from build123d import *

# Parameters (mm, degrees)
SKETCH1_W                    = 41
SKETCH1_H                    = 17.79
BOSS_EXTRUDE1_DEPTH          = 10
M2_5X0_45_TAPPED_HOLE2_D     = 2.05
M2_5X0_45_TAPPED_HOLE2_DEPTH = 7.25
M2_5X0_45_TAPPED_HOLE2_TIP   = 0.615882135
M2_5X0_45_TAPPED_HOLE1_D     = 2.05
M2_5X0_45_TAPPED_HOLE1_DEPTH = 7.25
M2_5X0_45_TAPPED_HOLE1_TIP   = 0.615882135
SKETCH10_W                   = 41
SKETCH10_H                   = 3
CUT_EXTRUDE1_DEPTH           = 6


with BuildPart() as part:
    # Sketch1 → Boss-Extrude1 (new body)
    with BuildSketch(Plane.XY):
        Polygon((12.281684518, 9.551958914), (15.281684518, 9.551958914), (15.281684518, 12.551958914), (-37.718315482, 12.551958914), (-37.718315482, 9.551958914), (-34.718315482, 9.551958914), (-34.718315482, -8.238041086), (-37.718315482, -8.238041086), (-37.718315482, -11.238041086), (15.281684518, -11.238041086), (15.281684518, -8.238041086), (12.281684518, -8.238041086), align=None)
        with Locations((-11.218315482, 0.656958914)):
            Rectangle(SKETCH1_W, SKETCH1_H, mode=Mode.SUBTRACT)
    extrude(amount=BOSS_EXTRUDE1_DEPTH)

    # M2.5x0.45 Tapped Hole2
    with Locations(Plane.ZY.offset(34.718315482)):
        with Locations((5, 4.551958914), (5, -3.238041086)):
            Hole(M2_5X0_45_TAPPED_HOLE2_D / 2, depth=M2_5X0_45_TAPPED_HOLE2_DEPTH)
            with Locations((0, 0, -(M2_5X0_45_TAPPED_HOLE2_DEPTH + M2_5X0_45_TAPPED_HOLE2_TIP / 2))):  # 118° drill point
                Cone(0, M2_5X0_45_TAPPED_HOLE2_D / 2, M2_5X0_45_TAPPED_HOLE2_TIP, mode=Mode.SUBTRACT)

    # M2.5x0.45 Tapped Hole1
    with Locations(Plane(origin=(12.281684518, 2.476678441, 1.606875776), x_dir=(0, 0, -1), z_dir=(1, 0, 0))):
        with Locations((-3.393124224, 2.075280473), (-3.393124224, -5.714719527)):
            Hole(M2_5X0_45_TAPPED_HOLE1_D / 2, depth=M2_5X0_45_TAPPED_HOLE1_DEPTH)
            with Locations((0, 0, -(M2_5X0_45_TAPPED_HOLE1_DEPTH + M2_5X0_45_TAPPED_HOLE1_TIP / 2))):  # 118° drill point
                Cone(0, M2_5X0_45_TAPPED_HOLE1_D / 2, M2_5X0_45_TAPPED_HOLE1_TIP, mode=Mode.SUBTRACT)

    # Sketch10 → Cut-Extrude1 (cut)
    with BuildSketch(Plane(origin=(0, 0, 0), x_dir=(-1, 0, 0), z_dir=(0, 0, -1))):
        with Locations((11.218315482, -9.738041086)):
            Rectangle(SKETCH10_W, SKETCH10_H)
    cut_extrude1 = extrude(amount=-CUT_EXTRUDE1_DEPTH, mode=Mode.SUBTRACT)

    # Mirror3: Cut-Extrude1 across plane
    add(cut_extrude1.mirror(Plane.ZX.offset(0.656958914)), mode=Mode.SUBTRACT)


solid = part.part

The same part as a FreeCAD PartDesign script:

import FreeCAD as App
import Part
import Sketcher
from FreeCAD import Vector

doc = App.newDocument("Part")
params = doc.addObject("Spreadsheet::Sheet", "Params")
for row, (alias, value) in enumerate([
    ("sketch1_width", "3 mm"),
    ("sketch1_width2", "53 mm"),
    ("sketch1_width3", "41 mm"),
    ("sketch1_height", "17.79 mm"),
    ("pad1_length", "10 mm"),
    ("sketch2_diameter", "2.05 mm"),
    ("hole_diameter", "2.05 mm"),
    ("hole_depth", "7.25 mm"),
    ("sketch3_diameter", "2.05 mm"),
    ("hole2_diameter", "2.05 mm"),
    ("hole2_depth", "7.25 mm"),
    ("sketch4_width", "41 mm"),
    ("sketch4_height", "3 mm"),
    ("pocket1_length", "6 mm"),
], start=1):
    params.set(f"A{row}", alias)
    params.set(f"B{row}", "=" + value)
    params.setAlias(f"B{row}", alias)

body = doc.addObject("PartDesign::Body", "Body")

sketch1 = doc.addObject("Sketcher::SketchObject", "Sketch")
body.addObject(sketch1)
sketch1.AttachmentSupport = (doc.XY_Plane, [""])
sketch1.MapMode = "FlatFace"
sketch1.addGeometry(Part.LineSegment(Vector(12.3, 9.6, 0), Vector(15.3, 9.6, 0)), False)
sketch1.addGeometry(Part.LineSegment(Vector(15.3, 9.6, 0), Vector(15.3, 12.6, 0)), False)
sketch1.addGeometry(Part.LineSegment(Vector(15.3, 12.6, 0), Vector(-37.7, 12.6, 0)), False)
sketch1.addGeometry(Part.LineSegment(Vector(-37.7, 12.6, 0), Vector(-37.7, 9.6, 0)), False)
sketch1.addGeometry(Part.LineSegment(Vector(-37.7, 9.6, 0), Vector(-34.7, 9.6, 0)), False)
sketch1.addGeometry(Part.LineSegment(Vector(-34.7, 9.6, 0), Vector(-34.7, -8.2, 0)), False)
sketch1.addGeometry(Part.LineSegment(Vector(-34.7, -8.2, 0), Vector(-37.7, -8.2, 0)), False)
sketch1.addGeometry(Part.LineSegment(Vector(-37.7, -8.2, 0), Vector(-37.7, -11.2, 0)), False)
sketch1.addGeometry(Part.LineSegment(Vector(-37.7, -11.2, 0), Vector(15.3, -11.2, 0)), False)
sketch1.addGeometry(Part.LineSegment(Vector(15.3, -11.2, 0), Vector(15.3, -8.2, 0)), False)
sketch1.addGeometry(Part.LineSegment(Vector(15.3, -8.2, 0), Vector(12.3, -8.2, 0)), False)
sketch1.addGeometry(Part.LineSegment(Vector(12.3, -8.2, 0), Vector(12.3, 9.6, 0)), False)
sketch1.addGeometry(Part.LineSegment(Vector(9.3, -8.2, 0), Vector(-31.7, -8.2, 0)), False)
sketch1.addGeometry(Part.LineSegment(Vector(-31.7, -8.2, 0), Vector(-31.7, 9.6, 0)), False)
sketch1.addGeometry(Part.LineSegment(Vector(-31.7, 9.6, 0), Vector(9.3, 9.6, 0)), False)
sketch1.addGeometry(Part.LineSegment(Vector(9.3, 9.6, 0), Vector(9.3, -8.2, 0)), False)
sketch1.addConstraint(Sketcher.Constraint("Coincident", 0, 2, 1, 1))
sketch1.addConstraint(Sketcher.Constraint("Coincident", 1, 2, 2, 1))
sketch1.addConstraint(Sketcher.Constraint("Coincident", 2, 2, 3, 1))
sketch1.addConstraint(Sketcher.Constraint("Coincident", 3, 2, 4, 1))
sketch1.addConstraint(Sketcher.Constraint("Coincident", 4, 2, 5, 1))
sketch1.addConstraint(Sketcher.Constraint("Coincident", 5, 2, 6, 1))
sketch1.addConstraint(Sketcher.Constraint("Coincident", 6, 2, 7, 1))
sketch1.addConstraint(Sketcher.Constraint("Coincident", 7, 2, 8, 1))
sketch1.addConstraint(Sketcher.Constraint("Coincident", 8, 2, 9, 1))
sketch1.addConstraint(Sketcher.Constraint("Coincident", 9, 2, 10, 1))
sketch1.addConstraint(Sketcher.Constraint("Coincident", 10, 2, 11, 1))
sketch1.addConstraint(Sketcher.Constraint("Coincident", 11, 2, 0, 1))
sketch1.addConstraint(Sketcher.Constraint("Coincident", 12, 2, 13, 1))
sketch1.addConstraint(Sketcher.Constraint("Coincident", 13, 2, 14, 1))
sketch1.addConstraint(Sketcher.Constraint("Coincident", 14, 2, 15, 1))
sketch1.addConstraint(Sketcher.Constraint("Coincident", 15, 2, 12, 1))
sketch1.addConstraint(Sketcher.Constraint("Horizontal", 0))
sketch1.addConstraint(Sketcher.Constraint("Vertical", 1))
sketch1.addConstraint(Sketcher.Constraint("Horizontal", 2))
sketch1.addConstraint(Sketcher.Constraint("Vertical", 3))
sketch1.addConstraint(Sketcher.Constraint("Horizontal", 4))
sketch1.addConstraint(Sketcher.Constraint("Vertical", 5))
sketch1.addConstraint(Sketcher.Constraint("Horizontal", 6))
sketch1.addConstraint(Sketcher.Constraint("Vertical", 7))
sketch1.addConstraint(Sketcher.Constraint("Horizontal", 8))
sketch1.addConstraint(Sketcher.Constraint("Vertical", 9))
sketch1.addConstraint(Sketcher.Constraint("Horizontal", 10))
sketch1.addConstraint(Sketcher.Constraint("Vertical", 11))
sketch1.addConstraint(Sketcher.Constraint("Horizontal", 12))
sketch1.addConstraint(Sketcher.Constraint("Vertical", 13))
sketch1.addConstraint(Sketcher.Constraint("Horizontal", 14))
sketch1.addConstraint(Sketcher.Constraint("Vertical", 15))
sketch1.addConstraint(Sketcher.Constraint("Horizontal", 0, 2, 3, 2))
sketch1.addConstraint(Sketcher.Constraint("Horizontal", 6, 2, 9, 2))
sketch1.addConstraint(Sketcher.Constraint("Horizontal", 10, 2, 12, 2))
sketch1.addConstraint(Sketcher.Constraint("Horizontal", 11, 2, 13, 2))
sketch1.addConstraint(Sketcher.Constraint("Vertical", 3, 2, 6, 2))
sketch1.addConstraint(Sketcher.Constraint("Vertical", 1, 2, 8, 2))
sketch1.addConstraint(Sketcher.Constraint("Equal", 0, 4))
sketch1.addConstraint(Sketcher.Constraint("Equal", 10, 1))
sketch1.addConstraint(Sketcher.Constraint("Equal", 3, 7))
sketch1.addConstraint(Sketcher.Constraint("DistanceX", 0, 1, 0, 2, 3.0))
sketch1.addConstraint(Sketcher.Constraint("DistanceX", 2, 2, 2, 1, 53.0))
sketch1.addConstraint(Sketcher.Constraint("DistanceX", 12, 2, 12, 1, 41.0))
sketch1.addConstraint(Sketcher.Constraint("DistanceX", 5, 2, 12, 2, 3.0))
sketch1.addConstraint(Sketcher.Constraint("DistanceY", 5, 2, 5, 1, 17.79))
sketch1.addConstraint(Sketcher.Constraint("DistanceY", -1, 1, 0, 2, 9.551959))
sketch1.addConstraint(Sketcher.Constraint("DistanceX", -1, 1, 0, 2, 15.281685))
sketch1.setExpression("Constraints[41]", "Params.sketch1_width")
sketch1.setExpression("Constraints[42]", "Params.sketch1_width2")
sketch1.setExpression("Constraints[43]", "Params.sketch1_width3")
sketch1.setExpression("Constraints[45]", "Params.sketch1_height")
pad1 = doc.addObject("PartDesign::Pad", "Pad")
body.addObject(pad1)
pad1.Profile = sketch1
pad1.setExpression("Length", "Params.pad1_length")

sketch2 = doc.addObject("Sketcher::SketchObject", "Sketch001")
body.addObject(sketch2)
sketch2.AttachmentSupport = (doc.YZ_Plane, [""])
sketch2.MapMode = "FlatFace"
sketch2.AttachmentOffset = App.Placement(Vector(0, 0, -34.718315), App.Rotation())
sketch2.addGeometry(Part.Circle(Vector(4.6, 5, 0), Vector(0, 0, 1), 1), False)
sketch2.addGeometry(Part.Circle(Vector(-3.2, 5, 0), Vector(0, 0, 1), 1), False)
sketch2.addConstraint(Sketcher.Constraint("Equal", 0, 1))
sketch2.addConstraint(Sketcher.Constraint("Horizontal", 0, 3, 1, 3))
sketch2.addConstraint(Sketcher.Constraint("Diameter", 0, 2.05))
sketch2.addConstraint(Sketcher.Constraint("DistanceY", -1, 1, 0, 3, 5.0))
sketch2.addConstraint(Sketcher.Constraint("DistanceX", 1, 3, 0, 3, 7.79))
sketch2.addConstraint(Sketcher.Constraint("DistanceX", -1, 1, 0, 3, 4.551959))
sketch2.setExpression("Constraints[2]", "Params.sketch2_diameter")
doc.recompute()
hole = doc.addObject("PartDesign::Hole", "Hole")
body.addObject(hole)
hole.Profile = sketch2
hole.ThreadType = "None"
hole.setExpression("Diameter", "Params.hole_diameter")
hole.DepthType = "Dimension"
hole.setExpression("Depth", "Params.hole_depth")
hole.DrillPoint = "Angled"
hole.DrillPointAngle = 118
hole.Reversed = True

sketch3 = doc.addObject("Sketcher::SketchObject", "Sketch002")
body.addObject(sketch3)
sketch3.AttachmentSupport = (doc.YZ_Plane, [""])
sketch3.MapMode = "FlatFace"
sketch3.AttachmentOffset = App.Placement(Vector(0, 0, 12.281685), App.Rotation())
sketch3.addGeometry(Part.Circle(Vector(4.6, 5, 0), Vector(0, 0, 1), 1), False)
sketch3.addGeometry(Part.Circle(Vector(-3.2, 5, 0), Vector(0, 0, 1), 1), False)
sketch3.addConstraint(Sketcher.Constraint("Equal", 0, 1))
sketch3.addConstraint(Sketcher.Constraint("Horizontal", 0, 3, 1, 3))
sketch3.addConstraint(Sketcher.Constraint("Diameter", 0, 2.05))
sketch3.addConstraint(Sketcher.Constraint("DistanceY", -1, 1, 0, 3, 5.0))
sketch3.addConstraint(Sketcher.Constraint("DistanceX", 1, 3, 0, 3, 7.79))
sketch3.addConstraint(Sketcher.Constraint("DistanceX", -1, 1, 0, 3, 4.551959))
sketch3.setExpression("Constraints[2]", "Params.sketch3_diameter")
doc.recompute()
hole2 = doc.addObject("PartDesign::Hole", "Hole001")
body.addObject(hole2)
hole2.Profile = sketch3
hole2.ThreadType = "None"
hole2.setExpression("Diameter", "Params.hole2_diameter")
hole2.DepthType = "Dimension"
hole2.setExpression("Depth", "Params.hole2_depth")
hole2.DrillPoint = "Angled"
hole2.DrillPointAngle = 118

sketch4 = doc.addObject("Sketcher::SketchObject", "Sketch003")
body.addObject(sketch4)
sketch4.AttachmentSupport = (doc.XY_Plane, [""])
sketch4.MapMode = "FlatFace"
sketch4.addGeometry(Part.LineSegment(Vector(9.3, -8.2, 0), Vector(9.3, -11.2, 0)), False)
sketch4.addGeometry(Part.LineSegment(Vector(9.3, -11.2, 0), Vector(-31.7, -11.2, 0)), False)
sketch4.addGeometry(Part.LineSegment(Vector(-31.7, -11.2, 0), Vector(-31.7, -8.2, 0)), False)
sketch4.addGeometry(Part.LineSegment(Vector(-31.7, -8.2, 0), Vector(9.3, -8.2, 0)), False)
sketch4.addConstraint(Sketcher.Constraint("Coincident", 0, 2, 1, 1))
sketch4.addConstraint(Sketcher.Constraint("Coincident", 1, 2, 2, 1))
sketch4.addConstraint(Sketcher.Constraint("Coincident", 2, 2, 3, 1))
sketch4.addConstraint(Sketcher.Constraint("Coincident", 3, 2, 0, 1))
sketch4.addConstraint(Sketcher.Constraint("Vertical", 0))
sketch4.addConstraint(Sketcher.Constraint("Horizontal", 1))
sketch4.addConstraint(Sketcher.Constraint("Vertical", 2))
sketch4.addConstraint(Sketcher.Constraint("Horizontal", 3))
sketch4.addConstraint(Sketcher.Constraint("DistanceX", 1, 2, 1, 1, 41.0))
sketch4.addConstraint(Sketcher.Constraint("DistanceY", 0, 2, 0, 1, 3.0))
sketch4.addConstraint(Sketcher.Constraint("DistanceY", 0, 2, -1, 1, 11.238041))
sketch4.addConstraint(Sketcher.Constraint("DistanceX", -1, 1, 0, 2, 9.281685))
sketch4.setExpression("Constraints[8]", "Params.sketch4_width")
sketch4.setExpression("Constraints[9]", "Params.sketch4_height")
pocket1 = doc.addObject("PartDesign::Pocket", "Pocket")
body.addObject(pocket1)
pocket1.Profile = sketch4
pocket1.setExpression("Length", "Params.pocket1_length")
pocket1.Reversed = True
doc.recompute()

datumplane = doc.addObject("PartDesign::Plane", "DatumPlane")
body.addObject(datumplane)
datumplane.AttachmentSupport = (doc.XZ_Plane, [""])
datumplane.MapMode = "FlatFace"
datumplane.AttachmentOffset = App.Placement(Vector(0, 0, -0.656959), App.Rotation())
mirrored = doc.addObject("PartDesign::Mirrored", "Mirrored")
body.addObject(mirrored)
mirrored.Originals = [pocket1]
mirrored.MirrorPlane = (datumplane, [""])
body.Tip = mirrored

doc.recompute()
